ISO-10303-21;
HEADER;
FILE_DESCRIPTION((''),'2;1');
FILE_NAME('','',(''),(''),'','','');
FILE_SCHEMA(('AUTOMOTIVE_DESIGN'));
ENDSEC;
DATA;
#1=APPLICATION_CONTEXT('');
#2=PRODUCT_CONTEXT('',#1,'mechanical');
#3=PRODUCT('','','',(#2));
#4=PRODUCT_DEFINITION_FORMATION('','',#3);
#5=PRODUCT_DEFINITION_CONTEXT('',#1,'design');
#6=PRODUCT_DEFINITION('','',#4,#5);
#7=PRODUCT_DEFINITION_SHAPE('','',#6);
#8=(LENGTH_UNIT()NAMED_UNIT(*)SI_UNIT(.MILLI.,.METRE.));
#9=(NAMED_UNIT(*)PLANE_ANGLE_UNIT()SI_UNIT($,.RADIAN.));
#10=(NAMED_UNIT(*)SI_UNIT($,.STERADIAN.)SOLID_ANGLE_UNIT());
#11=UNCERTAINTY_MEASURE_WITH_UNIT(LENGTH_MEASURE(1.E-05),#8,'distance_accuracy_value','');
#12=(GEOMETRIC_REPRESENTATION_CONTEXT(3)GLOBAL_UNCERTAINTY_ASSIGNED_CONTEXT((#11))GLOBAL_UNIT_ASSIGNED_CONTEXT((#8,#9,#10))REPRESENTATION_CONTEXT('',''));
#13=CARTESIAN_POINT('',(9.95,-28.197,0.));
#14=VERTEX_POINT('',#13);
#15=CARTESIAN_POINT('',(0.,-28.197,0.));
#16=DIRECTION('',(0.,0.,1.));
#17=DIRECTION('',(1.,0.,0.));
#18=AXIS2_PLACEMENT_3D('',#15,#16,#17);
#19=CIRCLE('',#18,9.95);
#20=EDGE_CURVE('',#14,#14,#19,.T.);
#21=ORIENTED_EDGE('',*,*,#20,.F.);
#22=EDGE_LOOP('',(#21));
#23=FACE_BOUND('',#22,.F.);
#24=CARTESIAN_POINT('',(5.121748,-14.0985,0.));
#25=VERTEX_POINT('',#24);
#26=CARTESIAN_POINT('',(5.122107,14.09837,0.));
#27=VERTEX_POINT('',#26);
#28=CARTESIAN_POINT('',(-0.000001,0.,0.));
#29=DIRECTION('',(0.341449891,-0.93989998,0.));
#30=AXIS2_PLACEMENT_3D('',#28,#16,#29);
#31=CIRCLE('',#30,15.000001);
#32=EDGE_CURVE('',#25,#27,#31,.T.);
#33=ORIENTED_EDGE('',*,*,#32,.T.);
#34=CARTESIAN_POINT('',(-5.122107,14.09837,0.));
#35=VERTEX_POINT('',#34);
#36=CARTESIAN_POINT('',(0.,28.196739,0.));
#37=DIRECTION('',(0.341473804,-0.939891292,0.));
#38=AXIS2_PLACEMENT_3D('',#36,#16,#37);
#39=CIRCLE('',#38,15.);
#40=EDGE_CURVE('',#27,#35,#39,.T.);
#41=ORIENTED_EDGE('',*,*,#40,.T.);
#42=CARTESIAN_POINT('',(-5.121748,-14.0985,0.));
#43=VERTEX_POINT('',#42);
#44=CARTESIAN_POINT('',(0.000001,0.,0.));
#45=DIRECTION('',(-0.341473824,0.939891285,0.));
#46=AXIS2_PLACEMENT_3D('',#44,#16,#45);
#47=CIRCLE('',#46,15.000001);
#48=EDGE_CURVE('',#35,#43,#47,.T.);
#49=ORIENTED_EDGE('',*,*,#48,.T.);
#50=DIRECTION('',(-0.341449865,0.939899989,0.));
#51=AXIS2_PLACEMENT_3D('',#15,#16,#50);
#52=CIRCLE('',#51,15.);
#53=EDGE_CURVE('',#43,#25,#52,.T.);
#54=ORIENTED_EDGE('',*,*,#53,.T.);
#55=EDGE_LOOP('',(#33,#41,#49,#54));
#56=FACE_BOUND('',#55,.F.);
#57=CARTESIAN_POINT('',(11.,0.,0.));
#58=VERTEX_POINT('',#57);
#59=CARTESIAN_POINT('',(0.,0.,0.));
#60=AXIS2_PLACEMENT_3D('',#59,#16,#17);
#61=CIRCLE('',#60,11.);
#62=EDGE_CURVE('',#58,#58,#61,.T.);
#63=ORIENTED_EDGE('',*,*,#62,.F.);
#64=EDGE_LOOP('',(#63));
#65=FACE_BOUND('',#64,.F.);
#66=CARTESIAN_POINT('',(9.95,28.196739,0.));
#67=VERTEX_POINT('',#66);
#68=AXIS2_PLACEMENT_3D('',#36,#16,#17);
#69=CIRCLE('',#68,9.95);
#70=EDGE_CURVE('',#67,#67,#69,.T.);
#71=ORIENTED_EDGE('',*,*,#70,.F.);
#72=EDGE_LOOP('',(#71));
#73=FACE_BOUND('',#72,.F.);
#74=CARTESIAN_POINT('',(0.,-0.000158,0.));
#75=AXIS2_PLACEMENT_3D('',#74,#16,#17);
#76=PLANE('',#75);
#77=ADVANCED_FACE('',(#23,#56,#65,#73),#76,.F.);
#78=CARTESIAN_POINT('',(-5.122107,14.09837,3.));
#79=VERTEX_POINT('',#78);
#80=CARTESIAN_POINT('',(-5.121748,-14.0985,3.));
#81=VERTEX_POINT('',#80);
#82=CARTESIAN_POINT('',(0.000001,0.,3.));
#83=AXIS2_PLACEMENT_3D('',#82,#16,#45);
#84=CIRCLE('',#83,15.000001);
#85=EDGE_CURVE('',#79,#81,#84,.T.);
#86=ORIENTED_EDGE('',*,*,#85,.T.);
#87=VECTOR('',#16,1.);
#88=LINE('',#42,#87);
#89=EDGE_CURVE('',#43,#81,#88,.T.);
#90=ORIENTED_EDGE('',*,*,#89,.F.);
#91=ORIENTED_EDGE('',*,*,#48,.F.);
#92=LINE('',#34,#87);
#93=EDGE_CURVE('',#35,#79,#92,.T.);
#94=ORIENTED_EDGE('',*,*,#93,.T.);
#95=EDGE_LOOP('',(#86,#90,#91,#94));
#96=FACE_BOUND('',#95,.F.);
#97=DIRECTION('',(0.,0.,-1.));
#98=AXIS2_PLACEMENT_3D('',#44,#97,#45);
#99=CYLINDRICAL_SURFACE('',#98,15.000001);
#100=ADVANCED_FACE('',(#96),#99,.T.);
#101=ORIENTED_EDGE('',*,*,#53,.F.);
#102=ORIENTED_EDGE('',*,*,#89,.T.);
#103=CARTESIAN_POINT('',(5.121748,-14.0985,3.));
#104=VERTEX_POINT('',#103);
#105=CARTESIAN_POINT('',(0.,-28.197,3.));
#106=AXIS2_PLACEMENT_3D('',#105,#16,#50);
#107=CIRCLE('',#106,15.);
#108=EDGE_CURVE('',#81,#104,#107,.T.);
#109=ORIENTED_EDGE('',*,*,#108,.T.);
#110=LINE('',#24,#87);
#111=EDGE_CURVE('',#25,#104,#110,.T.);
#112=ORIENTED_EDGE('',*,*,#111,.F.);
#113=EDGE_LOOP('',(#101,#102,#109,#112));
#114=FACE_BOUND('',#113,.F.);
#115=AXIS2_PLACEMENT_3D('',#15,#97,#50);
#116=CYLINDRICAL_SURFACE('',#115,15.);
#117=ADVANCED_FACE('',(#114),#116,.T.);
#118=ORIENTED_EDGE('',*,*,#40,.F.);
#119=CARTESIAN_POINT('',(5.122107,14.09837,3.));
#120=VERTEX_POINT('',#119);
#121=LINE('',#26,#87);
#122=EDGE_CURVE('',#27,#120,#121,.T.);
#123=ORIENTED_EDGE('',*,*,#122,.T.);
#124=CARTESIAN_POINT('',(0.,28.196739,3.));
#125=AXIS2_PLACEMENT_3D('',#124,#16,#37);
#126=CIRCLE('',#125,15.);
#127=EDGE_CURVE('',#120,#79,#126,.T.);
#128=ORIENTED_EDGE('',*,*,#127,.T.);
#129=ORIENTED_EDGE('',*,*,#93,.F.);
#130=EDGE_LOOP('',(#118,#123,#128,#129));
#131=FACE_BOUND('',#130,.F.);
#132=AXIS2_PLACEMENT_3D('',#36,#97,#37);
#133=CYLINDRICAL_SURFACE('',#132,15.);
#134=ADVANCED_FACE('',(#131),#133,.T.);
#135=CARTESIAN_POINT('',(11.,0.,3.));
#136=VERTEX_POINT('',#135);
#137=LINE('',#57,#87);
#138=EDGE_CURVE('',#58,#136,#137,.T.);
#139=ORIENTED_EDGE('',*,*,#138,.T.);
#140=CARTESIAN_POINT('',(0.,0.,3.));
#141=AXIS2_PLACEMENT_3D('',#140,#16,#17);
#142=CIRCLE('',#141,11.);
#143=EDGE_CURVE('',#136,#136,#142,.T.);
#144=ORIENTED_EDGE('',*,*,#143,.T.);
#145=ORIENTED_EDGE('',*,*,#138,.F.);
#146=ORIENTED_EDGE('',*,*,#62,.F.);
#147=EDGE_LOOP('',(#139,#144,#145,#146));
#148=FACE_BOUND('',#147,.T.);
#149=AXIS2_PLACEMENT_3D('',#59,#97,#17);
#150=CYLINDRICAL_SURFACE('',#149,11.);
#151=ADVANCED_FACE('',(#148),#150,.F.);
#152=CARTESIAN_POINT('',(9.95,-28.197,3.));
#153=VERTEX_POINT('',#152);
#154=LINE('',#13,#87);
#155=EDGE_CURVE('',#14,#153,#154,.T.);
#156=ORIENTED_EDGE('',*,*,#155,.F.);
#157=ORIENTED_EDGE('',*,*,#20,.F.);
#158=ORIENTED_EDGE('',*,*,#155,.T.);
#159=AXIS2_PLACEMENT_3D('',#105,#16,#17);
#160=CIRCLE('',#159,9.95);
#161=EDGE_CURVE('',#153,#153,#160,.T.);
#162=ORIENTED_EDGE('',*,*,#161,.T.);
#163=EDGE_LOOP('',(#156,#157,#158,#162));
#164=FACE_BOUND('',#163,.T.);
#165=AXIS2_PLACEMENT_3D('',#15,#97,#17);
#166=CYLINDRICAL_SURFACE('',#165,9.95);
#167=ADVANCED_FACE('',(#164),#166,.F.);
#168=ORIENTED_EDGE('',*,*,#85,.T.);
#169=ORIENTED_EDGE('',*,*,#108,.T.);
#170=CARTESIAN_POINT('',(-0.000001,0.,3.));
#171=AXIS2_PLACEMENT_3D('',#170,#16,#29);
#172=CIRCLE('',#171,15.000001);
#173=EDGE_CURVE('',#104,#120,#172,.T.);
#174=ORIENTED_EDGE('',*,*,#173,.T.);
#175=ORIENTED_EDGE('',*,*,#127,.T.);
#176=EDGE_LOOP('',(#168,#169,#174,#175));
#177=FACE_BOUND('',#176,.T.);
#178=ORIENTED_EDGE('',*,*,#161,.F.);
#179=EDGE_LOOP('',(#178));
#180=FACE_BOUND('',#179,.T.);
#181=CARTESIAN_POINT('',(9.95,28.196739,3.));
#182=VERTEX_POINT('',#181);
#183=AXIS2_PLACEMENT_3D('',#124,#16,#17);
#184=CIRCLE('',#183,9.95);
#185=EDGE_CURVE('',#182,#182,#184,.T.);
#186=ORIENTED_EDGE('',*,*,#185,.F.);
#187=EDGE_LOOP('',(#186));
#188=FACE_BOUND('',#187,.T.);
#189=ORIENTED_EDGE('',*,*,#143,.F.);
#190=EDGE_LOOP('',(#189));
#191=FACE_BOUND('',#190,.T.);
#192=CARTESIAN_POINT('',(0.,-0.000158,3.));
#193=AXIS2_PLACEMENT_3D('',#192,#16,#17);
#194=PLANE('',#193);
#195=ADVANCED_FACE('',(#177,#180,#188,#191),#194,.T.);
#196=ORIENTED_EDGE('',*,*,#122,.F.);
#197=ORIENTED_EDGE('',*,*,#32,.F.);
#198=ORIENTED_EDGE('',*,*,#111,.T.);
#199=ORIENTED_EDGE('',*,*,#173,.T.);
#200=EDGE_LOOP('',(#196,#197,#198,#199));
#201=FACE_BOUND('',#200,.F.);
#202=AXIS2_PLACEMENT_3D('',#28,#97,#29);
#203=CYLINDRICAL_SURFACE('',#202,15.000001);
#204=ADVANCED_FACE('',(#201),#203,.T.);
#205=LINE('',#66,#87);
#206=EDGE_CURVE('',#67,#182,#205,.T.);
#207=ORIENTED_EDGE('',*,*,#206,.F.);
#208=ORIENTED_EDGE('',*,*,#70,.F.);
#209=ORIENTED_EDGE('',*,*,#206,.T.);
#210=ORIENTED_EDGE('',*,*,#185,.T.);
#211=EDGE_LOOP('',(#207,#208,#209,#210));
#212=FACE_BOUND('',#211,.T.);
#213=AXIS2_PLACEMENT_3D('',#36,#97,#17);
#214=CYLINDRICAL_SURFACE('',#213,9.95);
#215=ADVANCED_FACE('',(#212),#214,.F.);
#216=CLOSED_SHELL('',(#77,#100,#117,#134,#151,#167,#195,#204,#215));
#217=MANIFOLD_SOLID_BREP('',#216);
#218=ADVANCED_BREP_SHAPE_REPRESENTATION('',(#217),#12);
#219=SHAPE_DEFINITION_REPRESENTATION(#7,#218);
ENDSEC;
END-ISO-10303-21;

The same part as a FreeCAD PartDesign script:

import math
import FreeCAD as App
import Part
import Sketcher

V = App.Vector

doc = App.newDocument("Part")
body = doc.addObject("PartDesign::Body", "Body")

# Sketch on XY plane
sketch1 = body.newObject("Sketcher::SketchObject", "Sketch")
sketch1.AttachmentSupport = (doc.getObject("XY_Plane"), [""])
sketch1.MapMode = "FlatFace"
sketch1.addGeometry([
    Part.ArcOfCircle(Part.Circle(V(0, 28, 0), V(0, 0, 1), 15), math.radians(-70), math.radians(250)),  # 0
    Part.ArcOfCircle(Part.Circle(V(0, 0, 0), V(0, 0, 1), 15), math.radians(110), math.radians(250)),  # 1
    Part.ArcOfCircle(Part.Circle(V(0, -28, 0), V(0, 0, 1), 15), math.radians(110), math.radians(430)),  # 2
    Part.ArcOfCircle(Part.Circle(V(0, 0, 0), V(0, 0, 1), 15), math.radians(-70), math.radians(70)),  # 3
    Part.Circle(V(0, -28, 0), V(0, 0, 1), 10),  # 4
    Part.Circle(V(0, 0, 0), V(0, 0, 1), 11),  # 5
    Part.Circle(V(0, 28, 0), V(0, 0, 1), 10),  # 6
], False)
sketch1.addConstraint([
    Sketcher.Constraint("Coincident", 0, 2, 1, 1),
    Sketcher.Constraint("Coincident", 1, 2, 2, 1),
    Sketcher.Constraint("Coincident", 2, 2, 3, 1),
    Sketcher.Constraint("Coincident", 3, 2, 0, 1),
    Sketcher.Constraint("Coincident", 1, 3, -1, 1),
    Sketcher.Constraint("Coincident", 3, 3, -1, 1),
    Sketcher.Constraint("Coincident", 5, 3, -1, 1),
    Sketcher.Constraint("Coincident", 4, 3, 2, 3),
    Sketcher.Constraint("Coincident", 6, 3, 0, 3),
    Sketcher.Constraint("Equal", 0, 1),
    Sketcher.Constraint("Equal", 1, 2),
    Sketcher.Constraint("Equal", 2, 3),
    Sketcher.Constraint("Equal", 4, 6),
    Sketcher.Constraint("PointOnObject", 0, 3, -2),
    Sketcher.Constraint("PointOnObject", 2, 3, -2),
    Sketcher.Constraint("Diameter", 5, 22.0),
    Sketcher.Constraint("Radius", 0, 15.0),
    Sketcher.Constraint("Diameter", 4, 19.9),
    Sketcher.Constraint("DistanceY", 2, 3, -1, 1, 28.197),
    Sketcher.Constraint("DistanceY", -1, 1, 0, 3, 28.196739),
])
pad1 = body.newObject("PartDesign::Pad", "Pad")
pad1.Profile = sketch1
pad1.Length = 3

doc.recompute()
